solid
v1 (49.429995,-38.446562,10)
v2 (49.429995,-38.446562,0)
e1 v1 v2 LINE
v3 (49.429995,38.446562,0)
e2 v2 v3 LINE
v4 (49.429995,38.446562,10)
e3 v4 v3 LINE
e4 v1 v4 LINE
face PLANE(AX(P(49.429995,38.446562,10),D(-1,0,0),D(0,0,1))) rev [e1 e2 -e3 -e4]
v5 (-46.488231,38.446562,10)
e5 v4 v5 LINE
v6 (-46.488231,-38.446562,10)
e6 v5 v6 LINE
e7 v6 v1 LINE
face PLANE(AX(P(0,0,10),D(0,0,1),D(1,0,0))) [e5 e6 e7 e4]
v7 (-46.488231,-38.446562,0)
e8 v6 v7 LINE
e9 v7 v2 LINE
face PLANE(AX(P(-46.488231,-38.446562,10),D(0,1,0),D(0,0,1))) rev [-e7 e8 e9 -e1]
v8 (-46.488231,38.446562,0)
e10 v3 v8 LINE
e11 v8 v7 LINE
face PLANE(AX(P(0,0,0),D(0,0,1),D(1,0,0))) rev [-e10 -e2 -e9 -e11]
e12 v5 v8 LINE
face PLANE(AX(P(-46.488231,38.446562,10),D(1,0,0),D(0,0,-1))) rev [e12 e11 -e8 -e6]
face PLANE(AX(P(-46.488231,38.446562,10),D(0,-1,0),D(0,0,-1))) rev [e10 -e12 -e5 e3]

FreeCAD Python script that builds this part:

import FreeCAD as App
import Part
import Sketcher


def add_polygon(sketch, points):
    """Adds a closed chain of lines whose ends are joined by coincident constraints."""
    first, n = sketch.GeometryCount, len(points)
    for a, b in zip(points, points[1:] + points[:1]):
        sketch.addGeometry(Part.LineSegment(App.Vector(*a, 0), App.Vector(*b, 0)), False)
    for i in range(n):
        sketch.addConstraint(Sketcher.Constraint("Coincident", first + i, 2, first + (i + 1) % n, 1))

doc = App.newDocument("Part")
body = doc.addObject("PartDesign::Body", "Body")

# Sketch on XY plane
sketch1 = doc.addObject("Sketcher::SketchObject", "Sketch")
body.addObject(sketch1)
sketch1.AttachmentSupport = (doc.XY_Plane, [""])
sketch1.MapMode = "FlatFace"
add_polygon(sketch1, [(-46, 38), (-46, -38), (49, -38), (49, 38)])  # lines 0-3
sketch1.addConstraint(Sketcher.Constraint("Vertical", 0))
sketch1.addConstraint(Sketcher.Constraint("Horizontal", 1))
sketch1.addConstraint(Sketcher.Constraint("Vertical", 2))
sketch1.addConstraint(Sketcher.Constraint("Horizontal", 3))
sketch1.addConstraint(Sketcher.Constraint("DistanceX", 1, 1, 1, 2, 95.918226))
sketch1.addConstraint(Sketcher.Constraint("DistanceY", 0, 2, 0, 1, 76.893124))
sketch1.addConstraint(Sketcher.Constraint("DistanceX", 0, 2, -1, 1, 46.488231))
sketch1.addConstraint(Sketcher.Constraint("DistanceY", 0, 2, -1, 1, 38.446562))
pad1 = doc.addObject("PartDesign::Pad", "Pad")
body.addObject(pad1)
pad1.Profile = sketch1
pad1.Length = 10

doc.recompute()
